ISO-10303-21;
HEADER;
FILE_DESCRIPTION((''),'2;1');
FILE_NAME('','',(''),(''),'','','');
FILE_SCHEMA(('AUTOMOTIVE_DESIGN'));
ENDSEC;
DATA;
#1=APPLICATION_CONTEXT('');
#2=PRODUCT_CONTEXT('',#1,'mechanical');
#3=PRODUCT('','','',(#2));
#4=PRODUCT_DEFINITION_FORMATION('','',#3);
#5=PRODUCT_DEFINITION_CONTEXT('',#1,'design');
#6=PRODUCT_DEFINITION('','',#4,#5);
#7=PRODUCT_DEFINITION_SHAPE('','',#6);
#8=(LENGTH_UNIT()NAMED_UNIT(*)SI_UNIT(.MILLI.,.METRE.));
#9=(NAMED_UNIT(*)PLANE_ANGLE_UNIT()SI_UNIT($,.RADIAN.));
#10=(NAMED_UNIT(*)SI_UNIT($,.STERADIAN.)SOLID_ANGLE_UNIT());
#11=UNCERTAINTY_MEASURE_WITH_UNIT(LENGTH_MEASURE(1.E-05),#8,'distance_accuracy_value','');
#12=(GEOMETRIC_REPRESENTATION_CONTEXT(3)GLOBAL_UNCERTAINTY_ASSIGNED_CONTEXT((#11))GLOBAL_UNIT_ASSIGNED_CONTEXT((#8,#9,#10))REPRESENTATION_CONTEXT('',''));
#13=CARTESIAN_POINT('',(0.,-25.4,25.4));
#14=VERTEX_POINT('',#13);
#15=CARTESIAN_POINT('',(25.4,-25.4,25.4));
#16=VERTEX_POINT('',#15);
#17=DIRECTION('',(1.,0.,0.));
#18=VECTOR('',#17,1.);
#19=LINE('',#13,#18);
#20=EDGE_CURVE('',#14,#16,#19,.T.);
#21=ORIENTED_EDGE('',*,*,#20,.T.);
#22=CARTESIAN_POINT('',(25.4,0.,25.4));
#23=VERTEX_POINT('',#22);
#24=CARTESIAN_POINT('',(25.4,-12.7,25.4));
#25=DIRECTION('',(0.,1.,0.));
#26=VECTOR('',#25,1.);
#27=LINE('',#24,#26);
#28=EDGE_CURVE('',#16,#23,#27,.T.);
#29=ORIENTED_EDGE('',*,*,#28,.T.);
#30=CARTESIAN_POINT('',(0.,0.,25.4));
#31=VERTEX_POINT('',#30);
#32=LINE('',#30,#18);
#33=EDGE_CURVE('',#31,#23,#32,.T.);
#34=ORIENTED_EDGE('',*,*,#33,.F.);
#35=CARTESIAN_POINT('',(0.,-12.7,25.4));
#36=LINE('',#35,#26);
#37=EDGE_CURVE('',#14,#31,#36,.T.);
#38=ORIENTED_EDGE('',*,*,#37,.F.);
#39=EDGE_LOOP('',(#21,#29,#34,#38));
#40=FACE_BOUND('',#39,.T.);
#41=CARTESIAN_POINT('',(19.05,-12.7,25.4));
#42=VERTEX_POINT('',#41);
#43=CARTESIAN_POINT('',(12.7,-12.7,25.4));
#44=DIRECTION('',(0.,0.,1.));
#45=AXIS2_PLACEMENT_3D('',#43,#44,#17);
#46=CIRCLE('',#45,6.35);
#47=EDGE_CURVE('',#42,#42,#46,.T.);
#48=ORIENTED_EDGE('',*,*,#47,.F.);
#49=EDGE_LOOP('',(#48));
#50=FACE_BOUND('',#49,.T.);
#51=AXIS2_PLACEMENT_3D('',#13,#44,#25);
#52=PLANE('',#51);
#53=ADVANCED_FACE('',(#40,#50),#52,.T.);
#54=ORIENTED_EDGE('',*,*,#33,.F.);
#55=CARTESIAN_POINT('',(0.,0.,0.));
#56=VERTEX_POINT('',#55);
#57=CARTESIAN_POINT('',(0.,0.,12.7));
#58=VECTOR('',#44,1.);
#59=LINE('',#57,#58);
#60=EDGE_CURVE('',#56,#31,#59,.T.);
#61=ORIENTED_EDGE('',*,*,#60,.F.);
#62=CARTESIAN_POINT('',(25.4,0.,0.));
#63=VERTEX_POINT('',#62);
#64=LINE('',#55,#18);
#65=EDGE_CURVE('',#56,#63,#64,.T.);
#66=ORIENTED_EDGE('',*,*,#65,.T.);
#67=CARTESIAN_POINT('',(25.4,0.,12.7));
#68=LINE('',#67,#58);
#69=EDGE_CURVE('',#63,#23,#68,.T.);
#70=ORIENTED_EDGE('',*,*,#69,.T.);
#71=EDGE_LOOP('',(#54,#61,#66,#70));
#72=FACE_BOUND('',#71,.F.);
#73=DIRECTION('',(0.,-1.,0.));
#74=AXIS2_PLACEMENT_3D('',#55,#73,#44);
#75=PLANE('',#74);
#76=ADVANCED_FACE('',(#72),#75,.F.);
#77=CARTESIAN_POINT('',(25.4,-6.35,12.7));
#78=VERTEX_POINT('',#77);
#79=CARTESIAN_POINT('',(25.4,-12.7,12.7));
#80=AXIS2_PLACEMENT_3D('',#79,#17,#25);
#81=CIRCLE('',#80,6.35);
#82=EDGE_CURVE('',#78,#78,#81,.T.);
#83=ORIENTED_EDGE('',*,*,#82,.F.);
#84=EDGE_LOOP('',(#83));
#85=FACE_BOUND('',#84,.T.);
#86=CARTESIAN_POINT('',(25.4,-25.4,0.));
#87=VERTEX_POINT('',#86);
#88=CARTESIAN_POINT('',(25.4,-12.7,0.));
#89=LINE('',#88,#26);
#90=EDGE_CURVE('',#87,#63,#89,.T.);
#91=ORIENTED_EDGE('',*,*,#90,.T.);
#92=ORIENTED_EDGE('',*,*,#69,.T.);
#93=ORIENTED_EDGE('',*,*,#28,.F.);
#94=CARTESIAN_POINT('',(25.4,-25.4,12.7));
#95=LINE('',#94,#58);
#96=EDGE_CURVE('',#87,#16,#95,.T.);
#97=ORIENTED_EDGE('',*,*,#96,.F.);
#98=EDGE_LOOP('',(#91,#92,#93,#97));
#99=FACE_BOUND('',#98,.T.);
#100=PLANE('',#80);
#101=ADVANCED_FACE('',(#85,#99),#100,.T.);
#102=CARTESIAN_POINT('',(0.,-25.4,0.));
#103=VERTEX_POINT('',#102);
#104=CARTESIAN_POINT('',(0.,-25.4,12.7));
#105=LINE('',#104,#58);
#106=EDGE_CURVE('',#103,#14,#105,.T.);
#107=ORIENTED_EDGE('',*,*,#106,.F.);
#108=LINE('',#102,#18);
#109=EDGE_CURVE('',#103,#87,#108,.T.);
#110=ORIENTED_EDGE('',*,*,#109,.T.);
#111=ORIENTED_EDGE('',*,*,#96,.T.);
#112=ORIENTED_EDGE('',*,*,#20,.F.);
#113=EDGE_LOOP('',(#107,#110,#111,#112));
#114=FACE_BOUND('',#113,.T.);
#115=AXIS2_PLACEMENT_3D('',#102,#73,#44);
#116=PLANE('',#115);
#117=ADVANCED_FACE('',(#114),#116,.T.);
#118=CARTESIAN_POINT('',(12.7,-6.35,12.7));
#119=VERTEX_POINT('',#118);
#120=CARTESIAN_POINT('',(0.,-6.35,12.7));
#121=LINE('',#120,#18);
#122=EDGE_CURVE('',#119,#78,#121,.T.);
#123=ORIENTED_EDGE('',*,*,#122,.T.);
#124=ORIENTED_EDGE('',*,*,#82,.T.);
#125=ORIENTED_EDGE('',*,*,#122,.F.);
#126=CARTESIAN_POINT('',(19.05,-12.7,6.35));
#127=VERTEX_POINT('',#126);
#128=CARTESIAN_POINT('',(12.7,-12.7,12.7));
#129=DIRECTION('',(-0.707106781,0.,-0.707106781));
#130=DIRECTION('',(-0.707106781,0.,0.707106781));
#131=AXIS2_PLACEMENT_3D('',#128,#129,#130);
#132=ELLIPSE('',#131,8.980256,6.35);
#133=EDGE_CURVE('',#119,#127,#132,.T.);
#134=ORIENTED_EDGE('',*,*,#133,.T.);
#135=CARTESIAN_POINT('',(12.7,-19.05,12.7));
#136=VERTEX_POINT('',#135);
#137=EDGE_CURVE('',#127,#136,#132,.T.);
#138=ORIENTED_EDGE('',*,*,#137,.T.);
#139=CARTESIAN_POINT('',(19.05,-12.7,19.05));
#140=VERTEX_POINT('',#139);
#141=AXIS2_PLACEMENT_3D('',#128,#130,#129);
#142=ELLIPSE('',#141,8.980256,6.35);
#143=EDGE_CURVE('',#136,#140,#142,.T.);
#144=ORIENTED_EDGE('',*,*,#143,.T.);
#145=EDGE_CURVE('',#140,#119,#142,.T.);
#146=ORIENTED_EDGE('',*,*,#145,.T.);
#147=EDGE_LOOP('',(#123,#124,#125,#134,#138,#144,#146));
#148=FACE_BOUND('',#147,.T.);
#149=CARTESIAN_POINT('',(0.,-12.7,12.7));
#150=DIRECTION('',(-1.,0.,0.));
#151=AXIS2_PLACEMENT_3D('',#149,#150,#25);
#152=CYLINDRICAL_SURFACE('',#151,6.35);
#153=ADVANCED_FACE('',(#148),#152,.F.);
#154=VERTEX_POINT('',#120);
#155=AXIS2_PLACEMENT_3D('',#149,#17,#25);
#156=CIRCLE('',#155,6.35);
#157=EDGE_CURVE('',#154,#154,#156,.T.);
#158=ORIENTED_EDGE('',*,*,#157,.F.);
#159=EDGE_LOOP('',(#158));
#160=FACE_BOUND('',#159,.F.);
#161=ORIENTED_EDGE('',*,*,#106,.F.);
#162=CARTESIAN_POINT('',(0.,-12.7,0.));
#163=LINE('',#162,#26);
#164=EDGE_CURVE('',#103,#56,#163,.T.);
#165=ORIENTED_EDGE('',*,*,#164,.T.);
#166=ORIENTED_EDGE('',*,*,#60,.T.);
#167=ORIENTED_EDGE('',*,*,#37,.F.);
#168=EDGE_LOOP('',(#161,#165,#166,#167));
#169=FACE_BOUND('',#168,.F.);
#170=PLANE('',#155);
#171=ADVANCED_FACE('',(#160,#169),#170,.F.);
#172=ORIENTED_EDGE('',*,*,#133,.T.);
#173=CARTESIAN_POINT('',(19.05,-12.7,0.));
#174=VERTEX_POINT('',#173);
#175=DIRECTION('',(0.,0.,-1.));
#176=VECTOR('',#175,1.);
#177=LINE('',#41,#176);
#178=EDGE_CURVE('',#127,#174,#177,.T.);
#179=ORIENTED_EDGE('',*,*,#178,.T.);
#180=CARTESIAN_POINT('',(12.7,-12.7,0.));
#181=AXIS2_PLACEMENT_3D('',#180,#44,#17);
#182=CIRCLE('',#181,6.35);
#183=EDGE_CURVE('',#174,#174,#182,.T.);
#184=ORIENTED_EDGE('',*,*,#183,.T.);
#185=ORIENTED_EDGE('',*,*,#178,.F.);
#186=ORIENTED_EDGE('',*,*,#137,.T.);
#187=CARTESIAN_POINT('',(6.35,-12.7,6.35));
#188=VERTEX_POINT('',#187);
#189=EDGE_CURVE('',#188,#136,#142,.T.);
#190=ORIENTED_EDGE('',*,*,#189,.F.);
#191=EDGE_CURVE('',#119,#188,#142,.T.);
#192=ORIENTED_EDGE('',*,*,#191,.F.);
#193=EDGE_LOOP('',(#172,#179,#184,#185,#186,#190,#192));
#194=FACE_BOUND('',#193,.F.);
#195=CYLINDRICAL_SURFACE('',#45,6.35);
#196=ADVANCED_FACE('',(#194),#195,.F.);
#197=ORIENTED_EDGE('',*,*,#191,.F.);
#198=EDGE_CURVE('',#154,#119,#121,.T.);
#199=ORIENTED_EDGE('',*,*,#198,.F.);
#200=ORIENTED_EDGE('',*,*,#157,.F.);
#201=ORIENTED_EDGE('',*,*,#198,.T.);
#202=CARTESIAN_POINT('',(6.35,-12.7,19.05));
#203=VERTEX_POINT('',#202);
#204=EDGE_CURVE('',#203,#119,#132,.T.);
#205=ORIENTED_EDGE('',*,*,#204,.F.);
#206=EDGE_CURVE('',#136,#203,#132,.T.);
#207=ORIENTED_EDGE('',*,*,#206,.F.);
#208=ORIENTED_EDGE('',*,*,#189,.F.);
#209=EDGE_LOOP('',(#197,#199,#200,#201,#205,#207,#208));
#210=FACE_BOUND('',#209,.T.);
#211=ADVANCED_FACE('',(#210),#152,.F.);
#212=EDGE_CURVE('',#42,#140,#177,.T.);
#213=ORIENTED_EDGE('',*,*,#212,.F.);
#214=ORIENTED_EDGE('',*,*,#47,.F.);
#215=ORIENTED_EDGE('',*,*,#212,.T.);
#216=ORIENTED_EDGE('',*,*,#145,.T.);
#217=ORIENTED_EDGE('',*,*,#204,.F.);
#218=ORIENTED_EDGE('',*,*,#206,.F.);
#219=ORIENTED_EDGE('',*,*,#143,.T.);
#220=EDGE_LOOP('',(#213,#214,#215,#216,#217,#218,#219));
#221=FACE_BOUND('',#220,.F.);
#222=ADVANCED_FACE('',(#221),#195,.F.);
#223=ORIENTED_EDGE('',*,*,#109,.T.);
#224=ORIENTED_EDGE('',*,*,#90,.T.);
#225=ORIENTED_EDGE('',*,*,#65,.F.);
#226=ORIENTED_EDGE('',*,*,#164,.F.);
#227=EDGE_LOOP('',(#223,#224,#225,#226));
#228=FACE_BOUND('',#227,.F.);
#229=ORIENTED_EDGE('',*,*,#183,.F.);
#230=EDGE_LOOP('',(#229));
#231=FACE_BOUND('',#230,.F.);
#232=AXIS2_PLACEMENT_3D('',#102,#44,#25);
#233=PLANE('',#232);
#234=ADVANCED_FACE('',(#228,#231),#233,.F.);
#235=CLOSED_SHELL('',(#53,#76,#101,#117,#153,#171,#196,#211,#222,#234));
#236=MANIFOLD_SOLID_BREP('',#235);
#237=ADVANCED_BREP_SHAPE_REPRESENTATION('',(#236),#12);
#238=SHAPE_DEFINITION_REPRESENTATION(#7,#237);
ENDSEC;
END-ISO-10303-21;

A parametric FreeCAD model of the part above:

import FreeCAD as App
import Part
import Sketcher
Q = App.Units.Quantity


def add_polygon(sketch, points):
    """Adds a closed chain of lines whose ends are joined by coincident constraints."""
    first, n = sketch.GeometryCount, len(points)
    for a, b in zip(points, points[1:] + points[:1]):
        sketch.addGeometry(Part.LineSegment(App.Vector(*a, 0), App.Vector(*b, 0)), False)
    for i in range(n):
        sketch.addConstraint(Sketcher.Constraint("Coincident", first + i, 2, first + (i + 1) % n, 1))

doc = App.newDocument("Part")
body = doc.addObject("PartDesign::Body", "Body")

# Sketch on YZ plane
sketch1 = body.newObject("Sketcher::SketchObject", "Sketch")
sketch1.AttachmentSupport = (doc.getObject("YZ_Plane"), [""])
sketch1.MapMode = "FlatFace"
add_polygon(sketch1, [(-25, 25), (-25, 0), (0, 0), (0, 25)])  # lines 0-3
sketch1.addGeometry(Part.Circle(App.Vector(-13, 13, 0), App.Vector(0, 0, 1), 6), False)  # 4
sketch1.addConstraint(Sketcher.Constraint("Vertical", 0))
sketch1.addConstraint(Sketcher.Constraint("Horizontal", 1))
sketch1.addConstraint(Sketcher.Constraint("Vertical", 2))
sketch1.addConstraint(Sketcher.Constraint("Horizontal", 3))
sketch1.addConstraint(Sketcher.Constraint("Coincident", 1, 2, -1, 1))
sketch1.addConstraint(Sketcher.Constraint("Equal", 3, 0))
sketch1.addConstraint(Sketcher.Constraint("Diameter", 4, Q("0.5 in")))
sketch1.addConstraint(Sketcher.Constraint("DistanceX", 1, 1, 1, 2, Q("1 in")))
sketch1.addConstraint(Sketcher.Constraint("DistanceX", 4, 3, -1, 1, Q("0.5 in")))
sketch1.addConstraint(Sketcher.Constraint("DistanceY", -1, 1, 4, 3, Q("0.5 in")))
pad1 = body.newObject("PartDesign::Pad", "Pad")
pad1.Profile = sketch1
pad1.Length = Q("1 in")

# Sketch on XY plane
sketch2 = body.newObject("Sketcher::SketchObject", "Sketch001")
sketch2.AttachmentSupport = (doc.getObject("XY_Plane"), [""])
sketch2.MapMode = "FlatFace"
sketch2.AttachmentOffset = App.Placement(App.Vector(0, 0, 1 * 25.4), App.Rotation())
sketch2.addGeometry(Part.Circle(App.Vector(13, -13, 0), App.Vector(0, 0, 1), 6), False)
sketch2.addConstraint(Sketcher.Constraint("Diameter", 0, Q("0.5 in")))
sketch2.addConstraint(Sketcher.Constraint("DistanceX", -1, 1, 0, 3, Q("0.5 in")))
sketch2.addConstraint(Sketcher.Constraint("DistanceY", 0, 3, -1, 1, Q("0.5 in")))
pocket1 = body.newObject("PartDesign::Pocket", "Pocket")
pocket1.Profile = sketch2
pocket1.Type = "ThroughAll"

doc.recompute()
